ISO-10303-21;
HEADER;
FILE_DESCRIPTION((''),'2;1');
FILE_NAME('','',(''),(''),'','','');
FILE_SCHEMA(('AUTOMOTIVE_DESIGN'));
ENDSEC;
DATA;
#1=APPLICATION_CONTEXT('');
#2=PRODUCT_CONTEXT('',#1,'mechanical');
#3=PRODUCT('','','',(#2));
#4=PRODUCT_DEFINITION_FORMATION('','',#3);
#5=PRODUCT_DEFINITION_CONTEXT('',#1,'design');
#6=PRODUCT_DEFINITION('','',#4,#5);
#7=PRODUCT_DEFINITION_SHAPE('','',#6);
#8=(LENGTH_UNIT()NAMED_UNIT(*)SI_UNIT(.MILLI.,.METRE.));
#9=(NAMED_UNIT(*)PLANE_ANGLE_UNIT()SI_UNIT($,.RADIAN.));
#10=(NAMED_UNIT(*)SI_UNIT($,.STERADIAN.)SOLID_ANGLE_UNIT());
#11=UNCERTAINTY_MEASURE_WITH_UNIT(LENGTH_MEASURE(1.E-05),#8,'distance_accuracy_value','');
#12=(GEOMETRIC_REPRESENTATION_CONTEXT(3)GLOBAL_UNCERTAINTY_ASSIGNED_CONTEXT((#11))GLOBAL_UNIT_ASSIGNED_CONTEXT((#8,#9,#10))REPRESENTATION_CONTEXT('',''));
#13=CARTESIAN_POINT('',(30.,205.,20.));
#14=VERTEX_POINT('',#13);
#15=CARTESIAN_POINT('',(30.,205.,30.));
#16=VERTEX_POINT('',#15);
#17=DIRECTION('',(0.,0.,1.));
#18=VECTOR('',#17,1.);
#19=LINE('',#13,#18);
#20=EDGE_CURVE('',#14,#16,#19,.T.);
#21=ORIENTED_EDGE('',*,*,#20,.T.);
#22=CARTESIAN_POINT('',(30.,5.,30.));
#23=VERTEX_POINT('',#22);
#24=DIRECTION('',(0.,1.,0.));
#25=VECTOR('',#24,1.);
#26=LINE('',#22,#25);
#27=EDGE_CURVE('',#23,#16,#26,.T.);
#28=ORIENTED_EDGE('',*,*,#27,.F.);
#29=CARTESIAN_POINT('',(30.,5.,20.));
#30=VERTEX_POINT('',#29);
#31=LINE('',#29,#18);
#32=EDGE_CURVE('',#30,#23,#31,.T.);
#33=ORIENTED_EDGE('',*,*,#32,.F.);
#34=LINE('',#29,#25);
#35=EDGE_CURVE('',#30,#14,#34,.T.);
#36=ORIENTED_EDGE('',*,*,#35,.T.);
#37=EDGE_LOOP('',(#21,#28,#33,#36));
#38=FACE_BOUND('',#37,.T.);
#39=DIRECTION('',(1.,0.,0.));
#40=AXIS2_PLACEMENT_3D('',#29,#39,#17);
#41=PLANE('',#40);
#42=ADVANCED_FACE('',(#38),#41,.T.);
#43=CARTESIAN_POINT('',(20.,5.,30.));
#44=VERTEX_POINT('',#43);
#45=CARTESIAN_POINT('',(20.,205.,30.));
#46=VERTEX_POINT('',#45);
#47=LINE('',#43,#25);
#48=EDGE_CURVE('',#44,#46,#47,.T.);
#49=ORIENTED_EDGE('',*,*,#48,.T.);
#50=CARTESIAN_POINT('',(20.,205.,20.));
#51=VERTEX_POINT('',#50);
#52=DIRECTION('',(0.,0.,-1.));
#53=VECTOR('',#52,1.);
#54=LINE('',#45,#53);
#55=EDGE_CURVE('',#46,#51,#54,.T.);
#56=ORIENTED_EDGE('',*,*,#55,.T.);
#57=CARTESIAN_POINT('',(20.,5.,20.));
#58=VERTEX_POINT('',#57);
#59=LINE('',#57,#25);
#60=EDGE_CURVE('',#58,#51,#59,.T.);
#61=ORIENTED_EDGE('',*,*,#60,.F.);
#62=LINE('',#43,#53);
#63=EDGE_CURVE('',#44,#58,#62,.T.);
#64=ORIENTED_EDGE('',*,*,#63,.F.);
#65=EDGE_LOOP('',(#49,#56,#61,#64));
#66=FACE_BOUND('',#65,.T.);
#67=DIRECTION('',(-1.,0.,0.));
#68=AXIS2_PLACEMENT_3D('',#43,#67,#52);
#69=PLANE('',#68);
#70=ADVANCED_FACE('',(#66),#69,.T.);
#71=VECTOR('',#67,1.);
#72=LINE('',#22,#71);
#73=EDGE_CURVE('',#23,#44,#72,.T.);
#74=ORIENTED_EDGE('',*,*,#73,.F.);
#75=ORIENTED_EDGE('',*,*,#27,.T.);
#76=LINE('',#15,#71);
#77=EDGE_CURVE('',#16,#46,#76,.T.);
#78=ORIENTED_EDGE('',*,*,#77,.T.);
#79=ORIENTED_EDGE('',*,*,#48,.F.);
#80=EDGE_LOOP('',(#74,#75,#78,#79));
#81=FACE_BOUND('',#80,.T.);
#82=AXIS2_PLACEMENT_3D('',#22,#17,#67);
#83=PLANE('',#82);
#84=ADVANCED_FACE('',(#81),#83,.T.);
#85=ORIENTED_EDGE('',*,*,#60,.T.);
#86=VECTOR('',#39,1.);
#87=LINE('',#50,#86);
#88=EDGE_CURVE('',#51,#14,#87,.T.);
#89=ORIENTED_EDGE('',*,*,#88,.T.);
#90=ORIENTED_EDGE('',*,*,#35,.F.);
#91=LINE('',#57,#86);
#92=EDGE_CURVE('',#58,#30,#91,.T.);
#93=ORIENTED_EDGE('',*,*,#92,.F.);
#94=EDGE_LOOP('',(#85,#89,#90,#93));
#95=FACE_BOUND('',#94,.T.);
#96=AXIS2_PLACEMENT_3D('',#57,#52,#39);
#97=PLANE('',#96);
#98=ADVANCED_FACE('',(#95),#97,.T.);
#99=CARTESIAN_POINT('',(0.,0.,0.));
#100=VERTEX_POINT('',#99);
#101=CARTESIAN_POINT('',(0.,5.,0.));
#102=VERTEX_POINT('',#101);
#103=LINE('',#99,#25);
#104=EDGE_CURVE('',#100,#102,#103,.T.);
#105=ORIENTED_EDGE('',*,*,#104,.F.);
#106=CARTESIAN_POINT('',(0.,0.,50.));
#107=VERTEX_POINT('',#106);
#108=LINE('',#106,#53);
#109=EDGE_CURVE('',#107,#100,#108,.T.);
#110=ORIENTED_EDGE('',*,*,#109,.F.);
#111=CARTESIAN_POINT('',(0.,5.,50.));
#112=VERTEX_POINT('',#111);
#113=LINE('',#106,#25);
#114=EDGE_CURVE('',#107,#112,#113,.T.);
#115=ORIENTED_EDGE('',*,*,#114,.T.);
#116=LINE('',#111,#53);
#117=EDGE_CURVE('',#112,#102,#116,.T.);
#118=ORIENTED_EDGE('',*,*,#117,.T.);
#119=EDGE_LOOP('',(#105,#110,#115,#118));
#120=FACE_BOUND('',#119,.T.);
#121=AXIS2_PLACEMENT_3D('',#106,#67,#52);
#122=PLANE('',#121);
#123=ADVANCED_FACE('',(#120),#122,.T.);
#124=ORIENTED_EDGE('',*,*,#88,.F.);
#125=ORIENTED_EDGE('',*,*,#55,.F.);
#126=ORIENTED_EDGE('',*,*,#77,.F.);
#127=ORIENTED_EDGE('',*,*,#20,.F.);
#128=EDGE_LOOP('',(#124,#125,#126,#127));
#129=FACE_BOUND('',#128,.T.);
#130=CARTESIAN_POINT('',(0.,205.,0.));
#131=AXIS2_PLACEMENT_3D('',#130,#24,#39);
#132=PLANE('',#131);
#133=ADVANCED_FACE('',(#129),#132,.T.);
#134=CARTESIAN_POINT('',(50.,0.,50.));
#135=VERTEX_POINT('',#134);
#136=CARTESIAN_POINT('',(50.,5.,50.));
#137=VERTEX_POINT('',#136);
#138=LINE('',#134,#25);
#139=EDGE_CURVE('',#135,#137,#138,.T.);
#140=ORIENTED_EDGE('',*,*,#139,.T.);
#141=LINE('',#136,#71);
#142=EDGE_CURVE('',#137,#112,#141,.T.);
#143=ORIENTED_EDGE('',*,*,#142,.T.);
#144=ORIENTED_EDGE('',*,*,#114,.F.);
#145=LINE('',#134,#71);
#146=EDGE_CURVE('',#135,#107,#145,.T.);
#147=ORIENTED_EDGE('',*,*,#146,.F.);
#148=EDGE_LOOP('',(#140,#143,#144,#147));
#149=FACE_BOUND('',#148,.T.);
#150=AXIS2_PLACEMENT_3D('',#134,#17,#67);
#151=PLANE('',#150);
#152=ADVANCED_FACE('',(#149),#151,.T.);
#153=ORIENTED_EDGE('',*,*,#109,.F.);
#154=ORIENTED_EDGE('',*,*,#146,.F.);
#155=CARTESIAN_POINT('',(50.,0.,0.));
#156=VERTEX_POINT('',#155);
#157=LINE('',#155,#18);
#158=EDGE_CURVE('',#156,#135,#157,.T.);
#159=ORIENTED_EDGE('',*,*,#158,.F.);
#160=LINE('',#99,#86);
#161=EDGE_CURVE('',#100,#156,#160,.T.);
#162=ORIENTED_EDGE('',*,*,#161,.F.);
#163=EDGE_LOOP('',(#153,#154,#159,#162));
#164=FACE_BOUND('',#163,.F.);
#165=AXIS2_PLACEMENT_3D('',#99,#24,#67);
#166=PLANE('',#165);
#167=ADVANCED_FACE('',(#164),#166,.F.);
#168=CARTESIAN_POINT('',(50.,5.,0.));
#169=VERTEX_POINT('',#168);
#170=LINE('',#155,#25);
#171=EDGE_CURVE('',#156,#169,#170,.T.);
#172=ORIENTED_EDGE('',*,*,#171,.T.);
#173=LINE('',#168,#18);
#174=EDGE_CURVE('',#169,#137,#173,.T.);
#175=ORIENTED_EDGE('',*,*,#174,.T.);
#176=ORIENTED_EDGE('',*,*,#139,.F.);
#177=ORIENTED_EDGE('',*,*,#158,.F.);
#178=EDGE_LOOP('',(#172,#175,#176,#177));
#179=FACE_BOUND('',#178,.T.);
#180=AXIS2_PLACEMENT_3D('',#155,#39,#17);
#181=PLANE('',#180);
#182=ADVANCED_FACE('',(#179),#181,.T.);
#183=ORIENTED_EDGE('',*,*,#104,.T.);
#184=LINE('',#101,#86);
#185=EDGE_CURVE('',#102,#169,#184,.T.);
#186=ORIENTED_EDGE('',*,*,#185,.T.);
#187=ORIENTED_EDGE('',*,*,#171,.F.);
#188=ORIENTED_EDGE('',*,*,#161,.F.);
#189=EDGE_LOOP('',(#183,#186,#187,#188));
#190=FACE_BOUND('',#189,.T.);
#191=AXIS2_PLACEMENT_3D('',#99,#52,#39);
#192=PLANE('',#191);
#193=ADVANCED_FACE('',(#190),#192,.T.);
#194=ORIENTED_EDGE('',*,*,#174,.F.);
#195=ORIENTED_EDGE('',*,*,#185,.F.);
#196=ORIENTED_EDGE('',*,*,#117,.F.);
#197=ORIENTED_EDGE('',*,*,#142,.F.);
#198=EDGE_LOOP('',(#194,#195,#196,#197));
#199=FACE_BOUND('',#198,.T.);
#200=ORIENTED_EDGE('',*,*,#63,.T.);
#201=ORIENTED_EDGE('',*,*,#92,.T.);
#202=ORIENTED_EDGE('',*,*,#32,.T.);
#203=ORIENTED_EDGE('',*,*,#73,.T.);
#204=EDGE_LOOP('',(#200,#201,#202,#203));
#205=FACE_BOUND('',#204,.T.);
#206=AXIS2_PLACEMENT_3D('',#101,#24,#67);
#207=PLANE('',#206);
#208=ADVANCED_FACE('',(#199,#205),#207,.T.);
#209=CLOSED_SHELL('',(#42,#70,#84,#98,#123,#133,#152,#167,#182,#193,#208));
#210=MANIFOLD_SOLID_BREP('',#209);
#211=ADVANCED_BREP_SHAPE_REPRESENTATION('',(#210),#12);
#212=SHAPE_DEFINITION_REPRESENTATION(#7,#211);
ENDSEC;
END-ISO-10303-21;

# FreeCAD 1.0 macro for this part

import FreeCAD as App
import Part
import Sketcher

doc = App.newDocument("Part")
body = doc.addObject("PartDesign::Body", "Body")

# Sketch on XZ plane
sketch1 = body.newObject("Sketcher::SketchObject", "Sketch")
sketch1.AttachmentSupport = (doc.getObject("XZ_Plane"), [""])
sketch1.MapMode = "FlatFace"
sketch1.addGeometry([
    Part.LineSegment(App.Vector(50, 0, 0), App.Vector(0, 0, 0)),
    Part.LineSegment(App.Vector(0, 0, 0), App.Vector(0, 50, 0)),
    Part.LineSegment(App.Vector(0, 50, 0), App.Vector(50, 50, 0)),
    Part.LineSegment(App.Vector(50, 50, 0), App.Vector(50, 0, 0)),
], False)
sketch1.addConstraint([
    Sketcher.Constraint("Coincident", 0, 2, 1, 1),
    Sketcher.Constraint("Coincident", 1, 2, 2, 1),
    Sketcher.Constraint("Coincident", 2, 2, 3, 1),
    Sketcher.Constraint("Coincident", 3, 2, 0, 1),
    Sketcher.Constraint("Horizontal", 0),
    Sketcher.Constraint("Vertical", 1),
    Sketcher.Constraint("Horizontal", 2),
    Sketcher.Constraint("Vertical", 3),
    Sketcher.Constraint("Coincident", 0, 2, -1, 1),
    Sketcher.Constraint("Equal", 2, 1),
    Sketcher.Constraint("DistanceX", 0, 2, 0, 1, 50.0),
])
pad1 = body.newObject("PartDesign::Pad", "Pad")
pad1.Profile = sketch1
pad1.Length = 5
pad1.Reversed = True

# Sketch on XZ plane
sketch2 = body.newObject("Sketcher::SketchObject", "Sketch001")
sketch2.AttachmentSupport = (doc.getObject("XZ_Plane"), [""])
sketch2.MapMode = "FlatFace"
sketch2.AttachmentOffset = App.Placement(App.Vector(0, 0, -5), App.Rotation())
sketch2.addGeometry([
    Part.LineSegment(App.Vector(30, 20, 0), App.Vector(20, 20, 0)),
    Part.LineSegment(App.Vector(20, 20, 0), App.Vector(20, 30, 0)),
    Part.LineSegment(App.Vector(20, 30, 0), App.Vector(30, 30, 0)),
    Part.LineSegment(App.Vector(30, 30, 0), App.Vector(30, 20, 0)),
], False)
sketch2.addConstraint([
    Sketcher.Constraint("Coincident", 0, 2, 1, 1),
    Sketcher.Constraint("Coincident", 1, 2, 2, 1),
    Sketcher.Constraint("Coincident", 2, 2, 3, 1),
    Sketcher.Constraint("Coincident", 3, 2, 0, 1),
    Sketcher.Constraint("Horizontal", 0),
    Sketcher.Constraint("Vertical", 1),
    Sketcher.Constraint("Horizontal", 2),
    Sketcher.Constraint("Vertical", 3),
    Sketcher.Constraint("Equal", 2, 1),
    Sketcher.Constraint("DistanceX", 0, 2, 0, 1, 10.0),
    Sketcher.Constraint("DistanceX", -1, 1, 0, 2, 20.0),
    Sketcher.Constraint("DistanceY", -1, 1, 0, 2, 20.0),
])
pad2 = body.newObject("PartDesign::Pad", "Pad001")
pad2.Profile = sketch2
pad2.Length = 200
pad2.Reversed = True

doc.recompute()
